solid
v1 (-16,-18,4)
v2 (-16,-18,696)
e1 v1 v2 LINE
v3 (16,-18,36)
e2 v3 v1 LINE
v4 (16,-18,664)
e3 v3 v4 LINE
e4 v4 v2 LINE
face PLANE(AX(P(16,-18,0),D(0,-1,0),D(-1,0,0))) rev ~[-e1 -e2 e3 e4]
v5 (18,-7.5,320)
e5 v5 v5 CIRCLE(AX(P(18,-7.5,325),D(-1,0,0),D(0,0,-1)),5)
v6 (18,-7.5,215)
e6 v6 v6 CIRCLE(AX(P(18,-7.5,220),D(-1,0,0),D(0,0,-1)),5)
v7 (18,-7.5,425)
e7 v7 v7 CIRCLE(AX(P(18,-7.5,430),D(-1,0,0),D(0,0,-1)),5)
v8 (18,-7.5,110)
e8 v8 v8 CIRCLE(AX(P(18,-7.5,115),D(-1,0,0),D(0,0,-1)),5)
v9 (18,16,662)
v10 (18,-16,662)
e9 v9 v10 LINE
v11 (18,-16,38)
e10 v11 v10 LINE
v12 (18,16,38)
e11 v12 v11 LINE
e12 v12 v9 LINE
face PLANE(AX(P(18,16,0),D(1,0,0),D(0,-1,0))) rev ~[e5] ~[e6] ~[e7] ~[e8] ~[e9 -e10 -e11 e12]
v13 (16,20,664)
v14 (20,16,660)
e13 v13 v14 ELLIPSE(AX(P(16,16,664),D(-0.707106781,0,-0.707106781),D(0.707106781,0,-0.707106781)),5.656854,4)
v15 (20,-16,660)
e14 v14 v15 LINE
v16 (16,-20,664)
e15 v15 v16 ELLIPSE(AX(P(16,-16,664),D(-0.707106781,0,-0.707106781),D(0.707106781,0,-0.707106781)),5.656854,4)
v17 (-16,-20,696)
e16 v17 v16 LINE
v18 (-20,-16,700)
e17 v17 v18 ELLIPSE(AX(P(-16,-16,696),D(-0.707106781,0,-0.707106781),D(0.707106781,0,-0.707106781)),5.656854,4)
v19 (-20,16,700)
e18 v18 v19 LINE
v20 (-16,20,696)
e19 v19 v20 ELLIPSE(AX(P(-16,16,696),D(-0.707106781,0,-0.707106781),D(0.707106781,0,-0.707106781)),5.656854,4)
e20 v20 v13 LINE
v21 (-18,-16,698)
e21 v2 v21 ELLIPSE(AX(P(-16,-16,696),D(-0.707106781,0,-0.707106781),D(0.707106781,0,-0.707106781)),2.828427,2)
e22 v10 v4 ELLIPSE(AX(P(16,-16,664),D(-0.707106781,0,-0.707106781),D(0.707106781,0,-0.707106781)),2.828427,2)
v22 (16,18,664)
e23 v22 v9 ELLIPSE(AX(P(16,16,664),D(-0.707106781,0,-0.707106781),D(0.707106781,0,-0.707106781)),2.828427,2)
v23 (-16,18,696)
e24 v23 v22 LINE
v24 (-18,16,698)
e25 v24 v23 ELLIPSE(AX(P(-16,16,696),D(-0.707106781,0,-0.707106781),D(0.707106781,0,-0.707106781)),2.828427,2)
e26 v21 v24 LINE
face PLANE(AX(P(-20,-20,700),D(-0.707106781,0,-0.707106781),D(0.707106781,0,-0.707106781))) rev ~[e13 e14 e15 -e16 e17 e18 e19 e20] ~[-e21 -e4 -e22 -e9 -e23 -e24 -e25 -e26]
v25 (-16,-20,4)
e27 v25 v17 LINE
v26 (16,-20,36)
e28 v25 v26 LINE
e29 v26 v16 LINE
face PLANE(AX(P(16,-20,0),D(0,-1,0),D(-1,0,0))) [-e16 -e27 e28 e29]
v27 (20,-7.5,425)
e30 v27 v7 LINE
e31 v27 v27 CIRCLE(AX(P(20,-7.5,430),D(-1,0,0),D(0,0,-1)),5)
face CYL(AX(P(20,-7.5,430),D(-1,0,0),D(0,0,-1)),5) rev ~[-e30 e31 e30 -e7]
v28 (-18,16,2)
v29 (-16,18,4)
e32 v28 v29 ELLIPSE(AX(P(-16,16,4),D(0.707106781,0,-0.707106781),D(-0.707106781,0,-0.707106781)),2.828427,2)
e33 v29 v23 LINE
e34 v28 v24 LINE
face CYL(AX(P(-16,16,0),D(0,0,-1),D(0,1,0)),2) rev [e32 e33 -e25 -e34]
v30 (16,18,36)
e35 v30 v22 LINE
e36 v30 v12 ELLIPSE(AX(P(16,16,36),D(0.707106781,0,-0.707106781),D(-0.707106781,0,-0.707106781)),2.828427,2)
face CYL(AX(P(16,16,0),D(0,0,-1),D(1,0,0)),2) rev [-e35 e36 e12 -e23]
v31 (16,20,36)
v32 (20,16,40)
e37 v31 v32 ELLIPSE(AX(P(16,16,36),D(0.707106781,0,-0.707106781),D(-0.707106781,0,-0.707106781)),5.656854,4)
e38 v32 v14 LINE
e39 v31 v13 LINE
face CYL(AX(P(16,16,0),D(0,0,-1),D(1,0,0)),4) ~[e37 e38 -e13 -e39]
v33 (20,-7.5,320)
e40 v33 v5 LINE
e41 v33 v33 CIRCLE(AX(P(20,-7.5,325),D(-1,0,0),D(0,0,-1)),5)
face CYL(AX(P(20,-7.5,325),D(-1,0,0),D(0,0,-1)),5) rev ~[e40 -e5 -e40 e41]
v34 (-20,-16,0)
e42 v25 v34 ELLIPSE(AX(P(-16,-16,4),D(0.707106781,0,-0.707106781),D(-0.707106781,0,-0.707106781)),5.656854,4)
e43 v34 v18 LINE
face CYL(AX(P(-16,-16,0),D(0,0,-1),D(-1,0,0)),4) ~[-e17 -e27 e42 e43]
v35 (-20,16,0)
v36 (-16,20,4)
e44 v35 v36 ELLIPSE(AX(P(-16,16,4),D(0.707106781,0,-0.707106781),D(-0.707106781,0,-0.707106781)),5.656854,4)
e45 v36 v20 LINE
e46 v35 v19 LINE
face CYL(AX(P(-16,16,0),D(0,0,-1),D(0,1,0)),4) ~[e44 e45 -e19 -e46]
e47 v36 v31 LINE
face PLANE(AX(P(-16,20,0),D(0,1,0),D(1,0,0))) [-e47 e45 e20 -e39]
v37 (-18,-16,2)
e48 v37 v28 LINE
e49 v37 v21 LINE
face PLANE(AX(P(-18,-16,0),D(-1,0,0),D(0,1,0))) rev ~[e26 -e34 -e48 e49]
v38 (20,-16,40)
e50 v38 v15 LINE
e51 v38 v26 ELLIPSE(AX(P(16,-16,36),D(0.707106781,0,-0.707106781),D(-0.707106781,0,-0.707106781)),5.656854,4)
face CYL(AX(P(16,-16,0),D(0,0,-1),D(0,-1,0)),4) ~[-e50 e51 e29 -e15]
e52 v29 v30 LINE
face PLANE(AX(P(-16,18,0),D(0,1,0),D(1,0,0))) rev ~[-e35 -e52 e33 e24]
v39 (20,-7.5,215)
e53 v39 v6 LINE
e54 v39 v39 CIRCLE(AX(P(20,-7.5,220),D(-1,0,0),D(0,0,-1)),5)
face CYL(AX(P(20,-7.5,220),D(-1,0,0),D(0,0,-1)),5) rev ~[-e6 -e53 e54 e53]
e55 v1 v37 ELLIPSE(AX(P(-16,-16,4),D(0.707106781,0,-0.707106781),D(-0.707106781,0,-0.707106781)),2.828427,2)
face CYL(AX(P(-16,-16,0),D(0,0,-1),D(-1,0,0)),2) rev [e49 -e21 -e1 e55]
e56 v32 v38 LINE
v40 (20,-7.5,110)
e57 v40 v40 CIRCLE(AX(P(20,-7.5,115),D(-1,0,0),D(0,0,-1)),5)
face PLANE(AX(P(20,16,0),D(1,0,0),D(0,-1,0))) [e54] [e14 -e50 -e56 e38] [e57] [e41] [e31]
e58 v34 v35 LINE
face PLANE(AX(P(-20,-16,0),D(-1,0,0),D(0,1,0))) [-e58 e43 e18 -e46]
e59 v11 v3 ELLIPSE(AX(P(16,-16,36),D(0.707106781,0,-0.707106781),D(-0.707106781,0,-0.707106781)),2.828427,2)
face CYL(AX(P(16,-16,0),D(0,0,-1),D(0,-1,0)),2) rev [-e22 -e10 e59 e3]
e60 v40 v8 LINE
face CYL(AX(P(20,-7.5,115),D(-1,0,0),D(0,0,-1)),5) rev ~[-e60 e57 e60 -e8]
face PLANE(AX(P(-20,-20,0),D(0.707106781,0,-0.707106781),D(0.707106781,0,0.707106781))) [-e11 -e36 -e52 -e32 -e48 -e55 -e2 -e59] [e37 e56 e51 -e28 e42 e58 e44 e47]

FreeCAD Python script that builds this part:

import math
import FreeCAD as App
import Part
import Sketcher
Q = App.Units.Quantity


def add_polygon(sketch, points):
    """Adds a closed chain of lines whose ends are joined by coincident constraints."""
    first, n = sketch.GeometryCount, len(points)
    for a, b in zip(points, points[1:] + points[:1]):
        sketch.addGeometry(Part.LineSegment(App.Vector(*a, 0), App.Vector(*b, 0)), False)
    for i in range(n):
        sketch.addConstraint(Sketcher.Constraint("Coincident", first + i, 2, first + (i + 1) % n, 1))

doc = App.newDocument("Part")
body = doc.addObject("PartDesign::Body", "Body")

sketch1 = body.newObject("Sketcher::SketchObject", "Sketch")
sketch1.AttachmentSupport = (doc.getObject("XY_Plane"), [""])
sketch1.MapMode = "FlatFace"
sketch1.addGeometry([
    Part.LineSegment(App.Vector(-20, 16, 0), App.Vector(-20, -16, 0)),
    Part.ArcOfCircle(Part.Circle(App.Vector(-16, -16, 0), App.Vector(0, 0, 1), 4), math.radians(180), math.radians(270)),
    Part.LineSegment(App.Vector(-16, -20, 0), App.Vector(16, -20, 0)),
    Part.ArcOfCircle(Part.Circle(App.Vector(16, -16, 0), App.Vector(0, 0, 1), 4), math.radians(-90), math.radians(0)),
    Part.LineSegment(App.Vector(20, -16, 0), App.Vector(20, 16, 0)),
    Part.ArcOfCircle(Part.Circle(App.Vector(16, 16, 0), App.Vector(0, 0, 1), 4), math.radians(0), math.radians(90)),
    Part.LineSegment(App.Vector(16, 20, 0), App.Vector(-16, 20, 0)),
    Part.ArcOfCircle(Part.Circle(App.Vector(-16, 16, 0), App.Vector(0, 0, 1), 4), math.radians(90), math.radians(180)),
    Part.ArcOfCircle(Part.Circle(App.Vector(-16, 16, 0), App.Vector(0, 0, 1), 2), math.radians(90), math.radians(180)),
    Part.LineSegment(App.Vector(-16, 18, 0), App.Vector(16, 18, 0)),
    Part.ArcOfCircle(Part.Circle(App.Vector(16, 16, 0), App.Vector(0, 0, 1), 2), math.radians(0), math.radians(90)),
    Part.LineSegment(App.Vector(18, 16, 0), App.Vector(18, -16, 0)),
    Part.ArcOfCircle(Part.Circle(App.Vector(16, -16, 0), App.Vector(0, 0, 1), 2), math.radians(-90), math.radians(0)),
    Part.LineSegment(App.Vector(16, -18, 0), App.Vector(-16, -18, 0)),
    Part.ArcOfCircle(Part.Circle(App.Vector(-16, -16, 0), App.Vector(0, 0, 1), 2), math.radians(180), math.radians(270)),
    Part.LineSegment(App.Vector(-18, -16, 0), App.Vector(-18, 16, 0)),
], False)
sketch1.addConstraint([
    Sketcher.Constraint("Tangent", 0, 2, 1, 1),
    Sketcher.Constraint("Tangent", 1, 2, 2, 1),
    Sketcher.Constraint("Tangent", 2, 2, 3, 1),
    Sketcher.Constraint("Tangent", 3, 2, 4, 1),
    Sketcher.Constraint("Tangent", 4, 2, 5, 1),
    Sketcher.Constraint("Tangent", 5, 2, 6, 1),
    Sketcher.Constraint("Tangent", 6, 2, 7, 1),
    Sketcher.Constraint("Tangent", 7, 2, 0, 1),
    Sketcher.Constraint("Tangent", 8, 1, 9, 1),
    Sketcher.Constraint("Tangent", 9, 2, 10, 2),
    Sketcher.Constraint("Tangent", 10, 1, 11, 1),
    Sketcher.Constraint("Tangent", 11, 2, 12, 2),
    Sketcher.Constraint("Tangent", 12, 1, 13, 1),
    Sketcher.Constraint("Tangent", 13, 2, 14, 2),
    Sketcher.Constraint("Tangent", 14, 1, 15, 1),
    Sketcher.Constraint("Tangent", 15, 2, 8, 2),
    Sketcher.Constraint("Vertical", 0),
    Sketcher.Constraint("Horizontal", 2),
    Sketcher.Constraint("Vertical", 4),
    Sketcher.Constraint("Horizontal", 6),
    Sketcher.Constraint("Horizontal", 9),
    Sketcher.Constraint("Vertical", 11),
    Sketcher.Constraint("Horizontal", 13),
    Sketcher.Constraint("Vertical", 15),
    Sketcher.Constraint("Coincident", 8, 3, 7, 3),
    Sketcher.Constraint("Coincident", 10, 3, 5, 3),
    Sketcher.Constraint("Coincident", 12, 3, 3, 3),
    Sketcher.Constraint("Equal", 1, 3),
    Sketcher.Constraint("Equal", 3, 5),
    Sketcher.Constraint("Equal", 5, 7),
    Sketcher.Constraint("Equal", 12, 14),
    Sketcher.Constraint("Symmetric", 1, 3, 5, 3, -1, 1),
    Sketcher.Constraint("Equal", 13, 0),
    Sketcher.Constraint("Radius", 1, Q("4 mm")),
    Sketcher.Constraint("Radius", 8, Q("2 mm")),
    Sketcher.Constraint("DistanceX", 0, 2, -1, 1, Q("20 mm")),
])
pad1 = body.newObject("PartDesign::Pad", "Pad")
pad1.Profile = sketch1
pad1.Length = 700

sketch2 = body.newObject("Sketcher::SketchObject", "Sketch001")
sketch2.AttachmentSupport = (doc.getObject("XZ_Plane"), [""])
sketch2.MapMode = "FlatFace"
sketch2.AttachmentOffset = App.Placement(App.Vector(0, 0, 20), App.Rotation())
add_polygon(sketch2, [(31, 734), (-20, 700), (31, 649)])
add_polygon(sketch2, [(40, 60), (-20, 0), (40, -51)])
sketch2.addConstraint([
    Sketcher.Constraint("Vertical", 2),
    Sketcher.Constraint("Vertical", 5),
    Sketcher.Constraint("PointOnObject", 3, 2, -1),
    Sketcher.Constraint("Perpendicular", 1, 3),
    Sketcher.Constraint("Vertical", 0, 2, 3, 2),
    Sketcher.Constraint("Angle", 1, Q("-45 deg")),
    Sketcher.Constraint("DistanceX", 0, 2, -1, 1, Q("20 mm")),
    Sketcher.Constraint("DistanceY", -1, 1, 0, 2, Q("700 mm")),
    Sketcher.Constraint("Angle", 0, Q("-146.2296 deg")),
    Sketcher.Constraint("Angle", 4, Q("-40.4507 deg")),
    Sketcher.Constraint("DistanceY", 2, 1, 2, 2, Q("84.5637 mm")),
    Sketcher.Constraint("DistanceY", 5, 1, 5, 2, Q("110.8208 mm")),
])
pocket1 = body.newObject("PartDesign::Pocket", "Pocket")
pocket1.Profile = sketch2
pocket1.Length = 40

sketch3 = body.newObject("Sketcher::SketchObject", "Sketch002")
sketch3.AttachmentSupport = (doc.getObject("YZ_Plane"), [""])
sketch3.MapMode = "FlatFace"
sketch3.AttachmentOffset = App.Placement(App.Vector(0, 0, 20), App.Rotation())
sketch3.addGeometry([
    Part.Circle(App.Vector(-8, 115, 0), App.Vector(0, 0, 1), 5),
    Part.Circle(App.Vector(-8, 220, 0), App.Vector(0, 0, 1), 5),
    Part.Circle(App.Vector(-8, 325, 0), App.Vector(0, 0, 1), 5),
    Part.Circle(App.Vector(-8, 430, 0), App.Vector(0, 0, 1), 5),
], False)
sketch3.addConstraint([
    Sketcher.Constraint("Equal", 0, 1),
    Sketcher.Constraint("Equal", 1, 2),
    Sketcher.Constraint("Equal", 2, 3),
    Sketcher.Constraint("Vertical", 0, 3, 1, 3),
    Sketcher.Constraint("Vertical", 1, 3, 2, 3),
    Sketcher.Constraint("Vertical", 2, 3, 3, 3),
    Sketcher.Constraint("Diameter", 0, Q("10 mm")),
    Sketcher.Constraint("DistanceY", -1, 1, 0, 3, Q("115 mm")),
    Sketcher.Constraint("DistanceY", -1, 1, 1, 3, Q("220 mm")),
    Sketcher.Constraint("DistanceY", -1, 1, 2, 3, Q("325 mm")),
    Sketcher.Constraint("DistanceY", -1, 1, 3, 3, Q("430 mm")),
    Sketcher.Constraint("DistanceX", 0, 3, -1, 1, Q("7.5 mm")),
])
doc.recompute()
hole = body.newObject("PartDesign::Hole", "Hole")
hole.Profile = sketch3
hole.ThreadType = "None"
hole.Diameter = 10
hole.DepthType = "Dimension"
hole.Depth = 8
hole.DrillPoint = "Angled"
hole.DrillPointAngle = 118

doc.recompute()
